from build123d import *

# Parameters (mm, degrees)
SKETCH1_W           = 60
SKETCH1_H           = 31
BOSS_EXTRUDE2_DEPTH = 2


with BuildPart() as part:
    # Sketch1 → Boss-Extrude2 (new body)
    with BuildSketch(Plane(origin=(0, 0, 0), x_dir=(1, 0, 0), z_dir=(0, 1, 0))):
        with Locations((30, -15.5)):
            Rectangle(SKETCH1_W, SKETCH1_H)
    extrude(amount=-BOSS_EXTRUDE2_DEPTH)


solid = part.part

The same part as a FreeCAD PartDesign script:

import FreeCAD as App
import Part
import Sketcher
from FreeCAD import Vector


def add_polygon(sketch, points):
    """Adds a closed chain of lines whose ends are joined by coincident constraints."""
    first, n = sketch.GeometryCount, len(points)
    for a, b in zip(points, points[1:] + points[:1]):
        sketch.addGeometry(Part.LineSegment(App.Vector(*a, 0), App.Vector(*b, 0)), False)
    for i in range(n):
        sketch.addConstraint(Sketcher.Constraint("Coincident", first + i, 2, first + (i + 1) % n, 1))

doc = App.newDocument("Part")
body = doc.addObject("PartDesign::Body", "Body")

# Sketch on XZ plane
sketch1 = body.newObject("Sketcher::SketchObject", "Sketch")
sketch1.AttachmentSupport = (doc.getObject("XZ_Plane"), [""])
sketch1.MapMode = "FlatFace"
add_polygon(sketch1, [(0, 0), (0, 31), (60, 31), (60, 0)])  # lines 0-3
sketch1.addConstraint([
    Sketcher.Constraint("Vertical", 0),
    Sketcher.Constraint("Horizontal", 1),
    Sketcher.Constraint("Vertical", 2),
    Sketcher.Constraint("Horizontal", 3),
    Sketcher.Constraint("Coincident", 3, 2, -1, 1),
    Sketcher.Constraint("DistanceX", 1, 1, 1, 2, 60.0),
    Sketcher.Constraint("DistanceY", 0, 1, 0, 2, 31.0),
])
pad1 = body.newObject("PartDesign::Pad", "Pad")
pad1.Profile = sketch1
pad1.Length = 2

doc.recompute()
